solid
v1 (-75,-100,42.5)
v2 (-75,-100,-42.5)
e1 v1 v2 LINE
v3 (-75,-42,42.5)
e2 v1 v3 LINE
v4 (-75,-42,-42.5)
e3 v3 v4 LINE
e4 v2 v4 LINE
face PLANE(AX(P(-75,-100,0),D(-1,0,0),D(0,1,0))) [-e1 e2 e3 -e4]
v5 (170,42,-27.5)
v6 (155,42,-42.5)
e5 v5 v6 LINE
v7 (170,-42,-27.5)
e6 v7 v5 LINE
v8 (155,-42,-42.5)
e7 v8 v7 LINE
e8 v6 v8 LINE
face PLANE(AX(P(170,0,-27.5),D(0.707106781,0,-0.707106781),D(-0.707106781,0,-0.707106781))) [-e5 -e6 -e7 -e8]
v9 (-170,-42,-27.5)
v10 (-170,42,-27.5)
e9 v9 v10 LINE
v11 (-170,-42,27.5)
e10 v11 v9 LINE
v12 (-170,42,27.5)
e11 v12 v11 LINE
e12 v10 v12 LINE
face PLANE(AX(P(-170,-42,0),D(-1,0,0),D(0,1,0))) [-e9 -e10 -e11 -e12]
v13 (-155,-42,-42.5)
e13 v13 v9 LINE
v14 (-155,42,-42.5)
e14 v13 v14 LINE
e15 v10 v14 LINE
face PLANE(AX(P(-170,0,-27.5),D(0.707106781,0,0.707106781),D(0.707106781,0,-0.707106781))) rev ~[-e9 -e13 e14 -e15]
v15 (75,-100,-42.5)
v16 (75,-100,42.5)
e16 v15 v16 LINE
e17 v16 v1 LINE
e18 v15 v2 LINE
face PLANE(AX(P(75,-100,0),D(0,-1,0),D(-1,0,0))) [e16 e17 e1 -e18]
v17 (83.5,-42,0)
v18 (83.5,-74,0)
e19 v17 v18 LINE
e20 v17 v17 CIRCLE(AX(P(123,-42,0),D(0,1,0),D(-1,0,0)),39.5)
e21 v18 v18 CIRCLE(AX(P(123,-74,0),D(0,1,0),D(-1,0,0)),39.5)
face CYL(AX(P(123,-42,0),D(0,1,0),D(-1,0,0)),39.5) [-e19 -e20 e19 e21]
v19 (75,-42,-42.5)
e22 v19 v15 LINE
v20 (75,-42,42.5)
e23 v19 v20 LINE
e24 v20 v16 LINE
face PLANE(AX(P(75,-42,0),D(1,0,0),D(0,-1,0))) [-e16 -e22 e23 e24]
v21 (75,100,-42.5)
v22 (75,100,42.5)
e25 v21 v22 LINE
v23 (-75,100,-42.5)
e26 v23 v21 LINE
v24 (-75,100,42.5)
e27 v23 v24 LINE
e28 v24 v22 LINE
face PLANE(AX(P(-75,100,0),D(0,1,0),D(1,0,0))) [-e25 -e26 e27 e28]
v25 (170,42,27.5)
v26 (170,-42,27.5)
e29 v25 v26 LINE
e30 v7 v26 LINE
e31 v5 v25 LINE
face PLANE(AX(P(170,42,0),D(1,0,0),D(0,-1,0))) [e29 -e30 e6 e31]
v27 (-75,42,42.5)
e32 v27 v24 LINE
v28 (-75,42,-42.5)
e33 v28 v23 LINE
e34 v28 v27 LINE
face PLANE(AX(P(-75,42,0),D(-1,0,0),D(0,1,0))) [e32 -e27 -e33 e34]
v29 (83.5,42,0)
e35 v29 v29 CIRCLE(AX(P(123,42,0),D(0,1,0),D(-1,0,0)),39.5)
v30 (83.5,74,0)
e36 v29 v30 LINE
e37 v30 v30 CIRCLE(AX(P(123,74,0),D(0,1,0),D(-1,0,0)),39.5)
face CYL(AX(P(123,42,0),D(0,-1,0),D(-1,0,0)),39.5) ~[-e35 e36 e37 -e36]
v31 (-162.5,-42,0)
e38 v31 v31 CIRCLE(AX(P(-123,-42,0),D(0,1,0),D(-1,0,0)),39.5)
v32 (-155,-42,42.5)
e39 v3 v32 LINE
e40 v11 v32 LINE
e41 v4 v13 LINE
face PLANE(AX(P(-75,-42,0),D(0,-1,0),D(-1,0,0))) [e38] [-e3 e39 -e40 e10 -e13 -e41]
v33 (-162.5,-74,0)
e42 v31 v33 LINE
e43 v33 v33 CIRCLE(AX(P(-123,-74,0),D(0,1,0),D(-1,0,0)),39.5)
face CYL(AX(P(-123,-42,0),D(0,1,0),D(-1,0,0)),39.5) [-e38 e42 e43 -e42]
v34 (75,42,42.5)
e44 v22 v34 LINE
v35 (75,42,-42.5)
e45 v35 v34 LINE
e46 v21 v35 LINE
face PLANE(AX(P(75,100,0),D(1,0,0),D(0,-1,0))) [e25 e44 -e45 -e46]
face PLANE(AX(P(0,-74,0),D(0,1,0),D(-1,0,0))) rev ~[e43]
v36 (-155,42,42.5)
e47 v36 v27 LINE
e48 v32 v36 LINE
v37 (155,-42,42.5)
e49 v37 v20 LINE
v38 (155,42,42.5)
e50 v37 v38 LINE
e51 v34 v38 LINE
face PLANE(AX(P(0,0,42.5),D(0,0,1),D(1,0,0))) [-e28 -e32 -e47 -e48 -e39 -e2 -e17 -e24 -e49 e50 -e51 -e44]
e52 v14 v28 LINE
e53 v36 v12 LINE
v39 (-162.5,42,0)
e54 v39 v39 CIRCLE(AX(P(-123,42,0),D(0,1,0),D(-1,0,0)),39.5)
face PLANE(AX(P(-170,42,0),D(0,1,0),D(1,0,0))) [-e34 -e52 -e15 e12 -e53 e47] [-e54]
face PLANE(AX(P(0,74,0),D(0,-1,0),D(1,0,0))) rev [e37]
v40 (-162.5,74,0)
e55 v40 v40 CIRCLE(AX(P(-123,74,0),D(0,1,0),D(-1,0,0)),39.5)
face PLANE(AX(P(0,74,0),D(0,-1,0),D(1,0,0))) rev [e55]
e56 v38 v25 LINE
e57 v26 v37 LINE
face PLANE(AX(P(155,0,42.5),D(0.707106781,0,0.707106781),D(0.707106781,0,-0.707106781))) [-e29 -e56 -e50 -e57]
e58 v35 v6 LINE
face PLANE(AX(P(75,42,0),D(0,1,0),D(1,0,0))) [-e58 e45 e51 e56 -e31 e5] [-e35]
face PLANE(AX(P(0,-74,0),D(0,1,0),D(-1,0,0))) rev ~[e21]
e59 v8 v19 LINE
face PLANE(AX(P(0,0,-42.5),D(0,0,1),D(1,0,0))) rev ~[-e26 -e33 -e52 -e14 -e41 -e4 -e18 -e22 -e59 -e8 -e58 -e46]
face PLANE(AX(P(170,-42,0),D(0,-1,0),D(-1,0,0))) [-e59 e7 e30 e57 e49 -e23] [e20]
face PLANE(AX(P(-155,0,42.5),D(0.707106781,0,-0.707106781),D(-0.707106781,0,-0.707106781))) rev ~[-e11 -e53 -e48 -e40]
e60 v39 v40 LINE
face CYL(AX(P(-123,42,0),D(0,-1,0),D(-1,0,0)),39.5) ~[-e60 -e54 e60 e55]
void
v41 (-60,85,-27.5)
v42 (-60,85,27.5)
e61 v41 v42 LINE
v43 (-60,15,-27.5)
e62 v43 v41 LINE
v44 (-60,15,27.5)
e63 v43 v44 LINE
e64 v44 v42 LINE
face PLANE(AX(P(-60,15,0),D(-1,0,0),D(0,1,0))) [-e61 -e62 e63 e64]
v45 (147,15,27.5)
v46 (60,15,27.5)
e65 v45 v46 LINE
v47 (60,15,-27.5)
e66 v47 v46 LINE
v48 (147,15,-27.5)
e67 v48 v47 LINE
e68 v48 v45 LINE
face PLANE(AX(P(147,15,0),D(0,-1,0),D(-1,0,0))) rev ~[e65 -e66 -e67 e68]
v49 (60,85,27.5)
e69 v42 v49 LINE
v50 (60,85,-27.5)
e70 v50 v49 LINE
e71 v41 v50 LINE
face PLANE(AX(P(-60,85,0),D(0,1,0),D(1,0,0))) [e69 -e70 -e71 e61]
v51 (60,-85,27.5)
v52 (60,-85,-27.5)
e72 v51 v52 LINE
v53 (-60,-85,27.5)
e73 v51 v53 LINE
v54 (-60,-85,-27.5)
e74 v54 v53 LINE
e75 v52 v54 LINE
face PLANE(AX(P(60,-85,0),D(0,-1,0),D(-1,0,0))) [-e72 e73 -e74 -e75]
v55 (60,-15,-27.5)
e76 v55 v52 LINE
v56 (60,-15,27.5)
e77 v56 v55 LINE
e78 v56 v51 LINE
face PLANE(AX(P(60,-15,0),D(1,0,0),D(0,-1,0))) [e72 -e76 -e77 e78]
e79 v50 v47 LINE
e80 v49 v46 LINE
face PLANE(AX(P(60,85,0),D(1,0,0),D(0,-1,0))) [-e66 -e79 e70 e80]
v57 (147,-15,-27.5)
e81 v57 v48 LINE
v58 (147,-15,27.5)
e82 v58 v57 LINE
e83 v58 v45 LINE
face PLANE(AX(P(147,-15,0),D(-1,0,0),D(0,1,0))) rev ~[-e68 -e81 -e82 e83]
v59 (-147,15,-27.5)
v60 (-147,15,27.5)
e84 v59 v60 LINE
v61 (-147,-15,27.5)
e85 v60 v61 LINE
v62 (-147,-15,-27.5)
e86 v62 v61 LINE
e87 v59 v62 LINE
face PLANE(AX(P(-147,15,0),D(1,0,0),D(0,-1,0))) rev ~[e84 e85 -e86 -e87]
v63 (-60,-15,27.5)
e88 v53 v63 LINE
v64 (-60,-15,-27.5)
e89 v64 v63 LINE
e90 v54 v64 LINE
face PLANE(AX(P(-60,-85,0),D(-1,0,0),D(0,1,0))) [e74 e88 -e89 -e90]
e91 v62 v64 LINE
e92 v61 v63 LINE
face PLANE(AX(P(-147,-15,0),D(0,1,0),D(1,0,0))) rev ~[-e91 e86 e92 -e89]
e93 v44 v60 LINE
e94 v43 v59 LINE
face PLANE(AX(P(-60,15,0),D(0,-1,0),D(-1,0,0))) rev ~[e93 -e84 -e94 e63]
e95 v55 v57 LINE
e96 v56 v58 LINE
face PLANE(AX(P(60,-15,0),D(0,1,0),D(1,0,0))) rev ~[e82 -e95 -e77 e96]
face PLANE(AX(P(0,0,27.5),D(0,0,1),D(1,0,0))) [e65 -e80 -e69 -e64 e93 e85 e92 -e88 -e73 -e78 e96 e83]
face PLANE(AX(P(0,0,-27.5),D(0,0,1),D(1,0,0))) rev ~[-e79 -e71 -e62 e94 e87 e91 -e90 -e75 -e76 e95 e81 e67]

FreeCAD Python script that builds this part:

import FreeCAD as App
import Part
import Sketcher
from FreeCAD import Vector

doc = App.newDocument("Part")
body = doc.addObject("PartDesign::Body", "Body")

# Sketch on XY plane
sketch1 = body.newObject("Sketcher::SketchObject", "Sketch")
sketch1.AttachmentSupport = (doc.getObject("XY_Plane"), [""])
sketch1.MapMode = "FlatFace"
sketch1.addGeometry([
    Part.LineSegment(Vector(-75, -100, 0), Vector(75, -100, 0)),  # 0
    Part.LineSegment(Vector(75, -100, 0), Vector(75, -42, 0)),  # 1
    Part.LineSegment(Vector(75, -42, 0), Vector(170, -42, 0)),  # 2
    Part.LineSegment(Vector(170, -42, 0), Vector(170, 42, 0)),  # 3
    Part.LineSegment(Vector(170, 42, 0), Vector(75, 42, 0)),  # 4
    Part.LineSegment(Vector(75, 42, 0), Vector(75, 100, 0)),  # 5
    Part.LineSegment(Vector(75, 100, 0), Vector(-75, 100, 0)),  # 6
    Part.LineSegment(Vector(-75, 100, 0), Vector(-75, 42, 0)),  # 7
    Part.LineSegment(Vector(-75, 42, 0), Vector(-170, 42, 0)),  # 8
    Part.LineSegment(Vector(-170, 42, 0), Vector(-170, -42, 0)),  # 9
    Part.LineSegment(Vector(-170, -42, 0), Vector(-75, -42, 0)),  # 10
    Part.LineSegment(Vector(-75, -42, 0), Vector(-75, -100, 0)),  # 11
], False)
sketch1.addConstraint([
    Sketcher.Constraint("Coincident", 0, 2, 1, 1),
    Sketcher.Constraint("Coincident", 1, 2, 2, 1),
    Sketcher.Constraint("Coincident", 2, 2, 3, 1),
    Sketcher.Constraint("Coincident", 3, 2, 4, 1),
    Sketcher.Constraint("Coincident", 4, 2, 5, 1),
    Sketcher.Constraint("Coincident", 5, 2, 6, 1),
    Sketcher.Constraint("Coincident", 6, 2, 7, 1),
    Sketcher.Constraint("Coincident", 7, 2, 8, 1),
    Sketcher.Constraint("Coincident", 8, 2, 9, 1),
    Sketcher.Constraint("Coincident", 9, 2, 10, 1),
    Sketcher.Constraint("Coincident", 10, 2, 11, 1),
    Sketcher.Constraint("Coincident", 11, 2, 0, 1),
    Sketcher.Constraint("Horizontal", 0),
    Sketcher.Constraint("Vertical", 1),
    Sketcher.Constraint("Horizontal", 2),
    Sketcher.Constraint("Vertical", 3),
    Sketcher.Constraint("Horizontal", 4),
    Sketcher.Constraint("Vertical", 5),
    Sketcher.Constraint("Horizontal", 6),
    Sketcher.Constraint("Vertical", 7),
    Sketcher.Constraint("Horizontal", 8),
    Sketcher.Constraint("Vertical", 9),
    Sketcher.Constraint("Horizontal", 10),
    Sketcher.Constraint("Vertical", 11),
    Sketcher.Constraint("Symmetric", 0, 2, 6, 2, -1, 1),
    Sketcher.Constraint("Symmetric", 2, 2, 8, 2, -1, 1),
    Sketcher.Constraint("Symmetric", 4, 2, 10, 2, -1, 1),
    Sketcher.Constraint("Symmetric", 4, 2, 7, 2, -2),
    Sketcher.Constraint("DistanceX", 0, 1, 0, 2, 150.0),
    Sketcher.Constraint("DistanceY", 3, 1, 3, 2, 84.0),
    Sketcher.Constraint("DistanceY", 0, 2, 5, 2, 200.0),
    Sketcher.Constraint("DistanceX", 2, 1, 2, 2, 95.0),
])
pad1 = body.newObject("PartDesign::Pad", "Pad")
pad1.Profile = sketch1
pad1.Length = 85
pad1.Midplane = True

# Sketch on XZ plane
sketch2 = body.newObject("Sketcher::SketchObject", "Sketch001")
sketch2.AttachmentSupport = (doc.getObject("XZ_Plane"), [""])
sketch2.MapMode = "FlatFace"
sketch2.AttachmentOffset = App.Placement(Vector(0, 0, 42), App.Rotation())
sketch2.addGeometry([
    Part.Circle(Vector(123, 0, 0), Vector(0, 0, 1), 40),
    Part.Circle(Vector(-123, 0, 0), Vector(0, 0, 1), 40),
], False)
sketch2.addConstraint([
    Sketcher.Constraint("Equal", 0, 1),
    Sketcher.Constraint("Symmetric", 0, 3, 1, 3, -1, 1),
    Sketcher.Constraint("PointOnObject", 0, 3, -1),
    Sketcher.Constraint("Diameter", 0, 79.0),
    Sketcher.Constraint("DistanceX", 1, 3, 0, 3, 246.0),
])
pad2 = body.newObject("PartDesign::Pad", "Pad001")
pad2.Profile = sketch2
pad2.Length = 32

# Sketch on XY plane
sketch3 = body.newObject("Sketcher::SketchObject", "Sketch002")
sketch3.AttachmentSupport = (doc.getObject("XY_Plane"), [""])
sketch3.MapMode = "FlatFace"
sketch3.addGeometry([
    Part.LineSegment(Vector(147, -15, 0), Vector(147, 15, 0)),  # 0
    Part.LineSegment(Vector(147, 15, 0), Vector(60, 15, 0)),  # 1
    Part.LineSegment(Vector(60, 15, 0), Vector(60, 85, 0)),  # 2
    Part.LineSegment(Vector(60, 85, 0), Vector(-60, 85, 0)),  # 3
    Part.LineSegment(Vector(-60, 85, 0), Vector(-60, 15, 0)),  # 4
    Part.LineSegment(Vector(-60, 15, 0), Vector(-147, 15, 0)),  # 5
    Part.LineSegment(Vector(-147, 15, 0), Vector(-147, -15, 0)),  # 6
    Part.LineSegment(Vector(-147, -15, 0), Vector(-60, -15, 0)),  # 7
    Part.LineSegment(Vector(-60, -15, 0), Vector(-60, -85, 0)),  # 8
    Part.LineSegment(Vector(-60, -85, 0), Vector(60, -85, 0)),  # 9
    Part.LineSegment(Vector(60, -85, 0), Vector(60, -15, 0)),  # 10
    Part.LineSegment(Vector(60, -15, 0), Vector(147, -15, 0)),  # 11
], False)
sketch3.addConstraint([
    Sketcher.Constraint("Coincident", 0, 2, 1, 1),
    Sketcher.Constraint("Coincident", 1, 2, 2, 1),
    Sketcher.Constraint("Coincident", 2, 2, 3, 1),
    Sketcher.Constraint("Coincident", 3, 2, 4, 1),
    Sketcher.Constraint("Coincident", 4, 2, 5, 1),
    Sketcher.Constraint("Coincident", 5, 2, 6, 1),
    Sketcher.Constraint("Coincident", 6, 2, 7, 1),
    Sketcher.Constraint("Coincident", 7, 2, 8, 1),
    Sketcher.Constraint("Coincident", 8, 2, 9, 1),
    Sketcher.Constraint("Coincident", 9, 2, 10, 1),
    Sketcher.Constraint("Coincident", 10, 2, 11, 1),
    Sketcher.Constraint("Coincident", 11, 2, 0, 1),
    Sketcher.Constraint("Vertical", 0),
    Sketcher.Constraint("Horizontal", 1),
    Sketcher.Constraint("Vertical", 2),
    Sketcher.Constraint("Horizontal", 3),
    Sketcher.Constraint("Vertical", 4),
    Sketcher.Constraint("Horizontal", 5),
    Sketcher.Constraint("Vertical", 6),
    Sketcher.Constraint("Horizontal", 7),
    Sketcher.Constraint("Vertical", 8),
    Sketcher.Constraint("Horizontal", 9),
    Sketcher.Constraint("Vertical", 10),
    Sketcher.Constraint("Horizontal", 11),
    Sketcher.Constraint("Symmetric", 0, 2, 6, 2, -1, 1),
    Sketcher.Constraint("Symmetric", 2, 2, 8, 2, -1, 1),
    Sketcher.Constraint("Symmetric", 4, 2, 10, 2, -1, 1),
    Sketcher.Constraint("Symmetric", 1, 2, 4, 2, -2),
    Sketcher.Constraint("DistanceY", 0, 1, 0, 2, 30.0),
    Sketcher.Constraint("DistanceX", 1, 2, 1, 1, 87.0),
    Sketcher.Constraint("DistanceX", 3, 2, 3, 1, 120.0),
    Sketcher.Constraint("DistanceY", 2, 1, 2, 2, 70.0),
])
pocket1 = body.newObject("PartDesign::Pocket", "Pocket")
pocket1.Profile = sketch3
pocket1.Length = 55
pocket1.Midplane = True

# Sketch on XZ plane
sketch4 = body.newObject("Sketcher::SketchObject", "Sketch003")
sketch4.AttachmentSupport = (doc.getObject("XZ_Plane"), [""])
sketch4.MapMode = "FlatFace"
sketch4.addGeometry([
    Part.LineSegment(Vector(155, -42, 0), Vector(170, -28, 0)),  # 0
    Part.LineSegment(Vector(170, -28, 0), Vector(170, -42, 0)),  # 1
    Part.LineSegment(Vector(170, -42, 0), Vector(155, -42, 0)),  # 2
    Part.LineSegment(Vector(170, 28, 0), Vector(155, 42, 0)),  # 3
    Part.LineSegment(Vector(155, 42, 0), Vector(170, 42, 0)),  # 4
    Part.LineSegment(Vector(170, 42, 0), Vector(170, 28, 0)),  # 5
    Part.LineSegment(Vector(-170, 28, 0), Vector(-170, 42, 0)),  # 6
    Part.LineSegment(Vector(-170, 42, 0), Vector(-155, 42, 0)),  # 7
    Part.LineSegment(Vector(-155, 42, 0), Vector(-170, 28, 0)),  # 8
    Part.LineSegment(Vector(-170, -42, 0), Vector(-170, -28, 0)),  # 9
    Part.LineSegment(Vector(-170, -28, 0), Vector(-155, -42, 0)),  # 10
    Part.LineSegment(Vector(-155, -42, 0), Vector(-170, -42, 0)),  # 11
], False)
sketch4.addConstraint([
    Sketcher.Constraint("Coincident", 0, 2, 1, 1),
    Sketcher.Constraint("Coincident", 1, 2, 2, 1),
    Sketcher.Constraint("Coincident", 2, 2, 0, 1),
    Sketcher.Constraint("Coincident", 3, 2, 4, 1),
    Sketcher.Constraint("Coincident", 4, 2, 5, 1),
    Sketcher.Constraint("Coincident", 5, 2, 3, 1),
    Sketcher.Constraint("Coincident", 6, 2, 7, 1),
    Sketcher.Constraint("Coincident", 7, 2, 8, 1),
    Sketcher.Constraint("Coincident", 8, 2, 6, 1),
    Sketcher.Constraint("Coincident", 9, 2, 10, 1),
    Sketcher.Constraint("Coincident", 10, 2, 11, 1),
    Sketcher.Constraint("Coincident", 11, 2, 9, 1),
    Sketcher.Constraint("Vertical", 1),
    Sketcher.Constraint("Horizontal", 2),
    Sketcher.Constraint("Horizontal", 4),
    Sketcher.Constraint("Vertical", 5),
    Sketcher.Constraint("Vertical", 6),
    Sketcher.Constraint("Horizontal", 7),
    Sketcher.Constraint("Vertical", 9),
    Sketcher.Constraint("Horizontal", 11),
    Sketcher.Constraint("Symmetric", 1, 2, 6, 2, -1, 1),
    Sketcher.Constraint("Symmetric", 5, 2, 9, 2, -1, 1),
    Sketcher.Constraint("Symmetric", 3, 2, 10, 2, -1, 1),
    Sketcher.Constraint("Symmetric", 4, 2, 6, 2, -2),
    Sketcher.Constraint("Perpendicular", 0, 3),
    Sketcher.Constraint("Perpendicular", 3, 8),
    Sketcher.Constraint("Horizontal", 5, 2, 8, 2),
    Sketcher.Constraint("Horizontal", 0, 2, 9, 2),
    Sketcher.Constraint("Vertical", 2, 2, 3, 2),
    Sketcher.Constraint("DistanceX", 2, 2, 2, 1, 15.0),
    Sketcher.Constraint("DistanceX", -1, 1, 0, 2, 170.0),
    Sketcher.Constraint("DistanceY", 0, 2, 3, 2, 70.0),
])
pocket2 = body.newObject("PartDesign::Pocket", "Pocket001")
pocket2.Profile = sketch4
pocket2.Type = "ThroughAll"
pocket2.Midplane = True
doc.recompute()

mirrored = body.newObject("PartDesign::Mirrored", "Mirrored")
mirrored.Originals = [pad2]
mirrored.MirrorPlane = (doc.getObject("XZ_Plane"), [""])
body.Tip = mirrored

doc.recompute()
